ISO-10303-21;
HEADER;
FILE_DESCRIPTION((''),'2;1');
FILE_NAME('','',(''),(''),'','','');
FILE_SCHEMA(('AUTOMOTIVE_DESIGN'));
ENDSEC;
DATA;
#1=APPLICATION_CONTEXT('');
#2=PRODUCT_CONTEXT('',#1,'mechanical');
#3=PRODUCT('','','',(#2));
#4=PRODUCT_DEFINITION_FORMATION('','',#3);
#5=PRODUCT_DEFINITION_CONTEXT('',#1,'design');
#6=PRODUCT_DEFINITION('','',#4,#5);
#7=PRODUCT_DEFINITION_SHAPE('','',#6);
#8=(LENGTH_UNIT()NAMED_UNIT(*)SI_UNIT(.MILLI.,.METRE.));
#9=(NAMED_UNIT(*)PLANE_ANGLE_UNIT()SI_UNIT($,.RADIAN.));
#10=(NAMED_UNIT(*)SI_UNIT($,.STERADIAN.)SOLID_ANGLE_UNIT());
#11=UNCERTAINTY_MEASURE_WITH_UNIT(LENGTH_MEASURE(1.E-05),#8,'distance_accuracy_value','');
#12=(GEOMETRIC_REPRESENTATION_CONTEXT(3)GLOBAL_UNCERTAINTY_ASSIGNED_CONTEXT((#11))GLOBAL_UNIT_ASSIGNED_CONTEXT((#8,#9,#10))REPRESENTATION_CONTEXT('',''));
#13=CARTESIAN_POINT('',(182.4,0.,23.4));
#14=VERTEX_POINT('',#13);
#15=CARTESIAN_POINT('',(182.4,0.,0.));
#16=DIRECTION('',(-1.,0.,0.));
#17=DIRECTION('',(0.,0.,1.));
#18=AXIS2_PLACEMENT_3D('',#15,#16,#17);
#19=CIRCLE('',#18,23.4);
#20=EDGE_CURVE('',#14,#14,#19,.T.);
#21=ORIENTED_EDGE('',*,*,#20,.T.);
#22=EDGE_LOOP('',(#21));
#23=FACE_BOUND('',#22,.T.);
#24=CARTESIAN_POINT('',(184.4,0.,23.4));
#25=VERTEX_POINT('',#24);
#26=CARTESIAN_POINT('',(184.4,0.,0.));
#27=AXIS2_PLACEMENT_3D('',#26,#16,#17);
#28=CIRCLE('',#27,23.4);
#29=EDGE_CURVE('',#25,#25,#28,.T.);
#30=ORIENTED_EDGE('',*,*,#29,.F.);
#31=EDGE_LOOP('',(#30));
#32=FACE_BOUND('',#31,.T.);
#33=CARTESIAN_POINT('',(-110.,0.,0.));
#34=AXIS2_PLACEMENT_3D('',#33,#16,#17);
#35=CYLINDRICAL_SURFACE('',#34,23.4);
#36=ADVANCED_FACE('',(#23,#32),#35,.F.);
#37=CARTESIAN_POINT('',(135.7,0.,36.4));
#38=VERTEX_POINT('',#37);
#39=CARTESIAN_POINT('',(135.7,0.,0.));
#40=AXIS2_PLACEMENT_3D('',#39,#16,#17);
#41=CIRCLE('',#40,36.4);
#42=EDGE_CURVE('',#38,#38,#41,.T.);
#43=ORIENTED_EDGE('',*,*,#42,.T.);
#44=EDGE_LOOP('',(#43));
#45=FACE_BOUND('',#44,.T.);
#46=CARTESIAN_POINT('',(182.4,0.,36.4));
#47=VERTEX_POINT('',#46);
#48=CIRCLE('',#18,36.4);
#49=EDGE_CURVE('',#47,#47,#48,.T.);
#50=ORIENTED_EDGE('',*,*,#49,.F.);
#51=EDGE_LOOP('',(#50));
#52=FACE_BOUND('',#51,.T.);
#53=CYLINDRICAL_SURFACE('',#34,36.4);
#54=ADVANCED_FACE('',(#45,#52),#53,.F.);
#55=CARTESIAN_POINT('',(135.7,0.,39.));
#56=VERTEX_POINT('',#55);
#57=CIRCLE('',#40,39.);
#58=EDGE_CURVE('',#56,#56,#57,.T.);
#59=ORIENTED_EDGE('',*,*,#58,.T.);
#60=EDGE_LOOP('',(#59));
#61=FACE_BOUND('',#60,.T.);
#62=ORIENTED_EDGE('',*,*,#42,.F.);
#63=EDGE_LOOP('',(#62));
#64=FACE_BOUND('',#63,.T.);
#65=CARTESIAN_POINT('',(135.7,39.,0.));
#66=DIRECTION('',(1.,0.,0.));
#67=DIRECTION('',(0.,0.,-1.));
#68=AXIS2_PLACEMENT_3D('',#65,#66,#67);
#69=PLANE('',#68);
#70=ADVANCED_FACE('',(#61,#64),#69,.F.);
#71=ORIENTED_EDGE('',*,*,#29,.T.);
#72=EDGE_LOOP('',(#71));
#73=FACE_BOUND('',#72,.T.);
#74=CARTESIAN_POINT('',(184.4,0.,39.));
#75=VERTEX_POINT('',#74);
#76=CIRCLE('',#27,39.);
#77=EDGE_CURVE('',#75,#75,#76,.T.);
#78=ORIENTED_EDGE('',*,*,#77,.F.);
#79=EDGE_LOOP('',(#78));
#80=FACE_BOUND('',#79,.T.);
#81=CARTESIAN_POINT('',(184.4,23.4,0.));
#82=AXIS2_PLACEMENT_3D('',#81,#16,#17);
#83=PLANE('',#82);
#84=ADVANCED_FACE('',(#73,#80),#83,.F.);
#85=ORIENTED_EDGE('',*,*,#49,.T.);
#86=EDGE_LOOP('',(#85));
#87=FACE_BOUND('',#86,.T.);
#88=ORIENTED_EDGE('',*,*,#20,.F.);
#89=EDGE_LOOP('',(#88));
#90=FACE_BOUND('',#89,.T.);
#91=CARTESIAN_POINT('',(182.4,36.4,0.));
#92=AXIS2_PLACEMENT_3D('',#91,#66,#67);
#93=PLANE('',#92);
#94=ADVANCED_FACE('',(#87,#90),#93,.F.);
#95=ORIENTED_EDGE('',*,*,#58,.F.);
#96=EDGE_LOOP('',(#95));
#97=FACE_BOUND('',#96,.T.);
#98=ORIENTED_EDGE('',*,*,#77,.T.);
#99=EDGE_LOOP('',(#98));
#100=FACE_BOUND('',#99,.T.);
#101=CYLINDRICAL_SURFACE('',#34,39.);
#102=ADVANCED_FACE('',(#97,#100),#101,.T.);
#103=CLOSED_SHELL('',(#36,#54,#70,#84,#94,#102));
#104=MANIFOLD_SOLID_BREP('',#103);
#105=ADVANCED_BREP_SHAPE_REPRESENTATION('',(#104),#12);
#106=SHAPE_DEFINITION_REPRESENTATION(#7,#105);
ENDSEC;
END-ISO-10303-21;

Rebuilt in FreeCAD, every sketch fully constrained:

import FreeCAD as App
import Part
import Sketcher
Q = App.Units.Quantity

doc = App.newDocument("Part")
params = doc.addObject("Spreadsheet::Sheet", "Params")
for row, (alias, value) in enumerate([
    ("sketch1_width", "2 mm"),
    ("sketch1_height", "13 mm"),
    ("sketch1_width2", "46.7 mm"),
    ("sketch1_height2", "15.6 mm"),
    ("revolution_angle", "360 deg"),
], start=1):
    params.set(f"A{row}", alias)
    params.set(f"B{row}", "=" + value)
    params.setAlias(f"B{row}", alias)

body = doc.addObject("PartDesign::Body", "Body")

# Sketch on XY plane
sketch1 = doc.addObject("Sketcher::SketchObject", "Sketch")
body.addObject(sketch1)
sketch1.AttachmentSupport = (doc.XY_Plane, [""])
sketch1.MapMode = "FlatFace"
sketch1.addGeometry(Part.LineSegment(App.Vector(135.7, 36.4, 0), App.Vector(182.4, 36.4, 0)), False)
sketch1.addGeometry(Part.LineSegment(App.Vector(182.4, 36.4, 0), App.Vector(182.4, 23.4, 0)), False)
sketch1.addGeometry(Part.LineSegment(App.Vector(182.4, 23.4, 0), App.Vector(184.4, 23.4, 0)), False)
sketch1.addGeometry(Part.LineSegment(App.Vector(184.4, 23.4, 0), App.Vector(184.4, 39, 0)), False)
sketch1.addGeometry(Part.LineSegment(App.Vector(184.4, 39, 0), App.Vector(135.7, 39, 0)), False)
sketch1.addGeometry(Part.LineSegment(App.Vector(135.7, 39, 0), App.Vector(135.7, 36.4, 0)), False)
sketch1.addConstraint(Sketcher.Constraint("Coincident", 0, 2, 1, 1))
sketch1.addConstraint(Sketcher.Constraint("Coincident", 1, 2, 2, 1))
sketch1.addConstraint(Sketcher.Constraint("Coincident", 2, 2, 3, 1))
sketch1.addConstraint(Sketcher.Constraint("Coincident", 3, 2, 4, 1))
sketch1.addConstraint(Sketcher.Constraint("Coincident", 4, 2, 5, 1))
sketch1.addConstraint(Sketcher.Constraint("Coincident", 5, 2, 0, 1))
sketch1.addConstraint(Sketcher.Constraint("Horizontal", 0))
sketch1.addConstraint(Sketcher.Constraint("Vertical", 1))
sketch1.addConstraint(Sketcher.Constraint("Horizontal", 2))
sketch1.addConstraint(Sketcher.Constraint("Vertical", 3))
sketch1.addConstraint(Sketcher.Constraint("Horizontal", 4))
sketch1.addConstraint(Sketcher.Constraint("Vertical", 5))
sketch1.addConstraint(Sketcher.Constraint("DistanceX", 2, 1, 2, 2, Q("2 mm")))
sketch1.addConstraint(Sketcher.Constraint("DistanceY", 1, 2, 1, 1, Q("13 mm")))
sketch1.addConstraint(Sketcher.Constraint("DistanceX", 0, 1, 0, 2, Q("46.7 mm")))
sketch1.addConstraint(Sketcher.Constraint("DistanceY", 3, 1, 3, 2, Q("15.6 mm")))
sketch1.addConstraint(Sketcher.Constraint("DistanceY", -1, 1, 3, 2, Q("39 mm")))
sketch1.addConstraint(Sketcher.Constraint("DistanceX", -1, 1, 0, 2, Q("182.4 mm")))
sketch1.setExpression("Constraints[12]", "Params.sketch1_width")
sketch1.setExpression("Constraints[13]", "Params.sketch1_height")
sketch1.setExpression("Constraints[14]", "Params.sketch1_width2")
sketch1.setExpression("Constraints[15]", "Params.sketch1_height2")
revolution = doc.addObject("PartDesign::Revolution", "Revolution")
body.addObject(revolution)
revolution.Profile = sketch1
revolution.ReferenceAxis = (sketch1, ["H_Axis"])
revolution.setExpression("Angle", "Params.revolution_angle")

doc.recompute()
